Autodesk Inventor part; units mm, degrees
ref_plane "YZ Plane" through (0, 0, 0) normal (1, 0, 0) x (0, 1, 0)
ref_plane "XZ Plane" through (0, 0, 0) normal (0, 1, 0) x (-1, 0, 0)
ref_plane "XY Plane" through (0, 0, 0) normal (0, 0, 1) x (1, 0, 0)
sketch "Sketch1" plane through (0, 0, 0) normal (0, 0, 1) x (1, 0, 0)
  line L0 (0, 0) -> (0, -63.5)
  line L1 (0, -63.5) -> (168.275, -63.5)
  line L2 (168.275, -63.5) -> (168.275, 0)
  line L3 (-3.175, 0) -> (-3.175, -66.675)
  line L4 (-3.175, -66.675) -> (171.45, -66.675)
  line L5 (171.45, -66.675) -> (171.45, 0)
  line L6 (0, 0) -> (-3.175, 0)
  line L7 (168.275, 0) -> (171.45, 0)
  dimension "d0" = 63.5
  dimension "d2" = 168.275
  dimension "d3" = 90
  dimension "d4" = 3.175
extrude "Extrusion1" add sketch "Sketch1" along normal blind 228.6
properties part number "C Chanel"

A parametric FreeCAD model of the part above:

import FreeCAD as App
import Part
import Sketcher
Q = App.Units.Quantity


def add_polygon(sketch, points):
    """Adds a closed chain of lines whose ends are joined by coincident constraints."""
    first, n = sketch.GeometryCount, len(points)
    for a, b in zip(points, points[1:] + points[:1]):
        sketch.addGeometry(Part.LineSegment(App.Vector(*a, 0), App.Vector(*b, 0)), False)
    for i in range(n):
        sketch.addConstraint(Sketcher.Constraint("Coincident", first + i, 2, first + (i + 1) % n, 1))

doc = App.newDocument("Part")
params = doc.addObject("Spreadsheet::Sheet", "Params")
for row, (alias, value) in enumerate([
    ("sketch1_height", "2.5 in"),
    ("sketch1_width", "0.125 in"),
    ("sketch1_width2", "6.625 in"),
    ("pad1_length", "9 in"),
], start=1):
    params.set(f"A{row}", alias)
    params.set(f"B{row}", "=" + value)
    params.setAlias(f"B{row}", alias)

body = doc.addObject("PartDesign::Body", "Body")

# Sketch on XY plane
sketch1 = body.newObject("Sketcher::SketchObject", "Sketch")
sketch1.AttachmentSupport = (doc.getObject("XY_Plane"), [""])
sketch1.MapMode = "FlatFace"
add_polygon(sketch1, [(0, -63.5), (0, 0), (-3.175, 0), (-3.175, -66.675), (171.45, -66.675), (171.45, 0), (168.275, 0), (168.275, -63.5)])  # lines 0-7
sketch1.addConstraint(Sketcher.Constraint("Vertical", 0))
sketch1.addConstraint(Sketcher.Constraint("Horizontal", 1))
sketch1.addConstraint(Sketcher.Constraint("Vertical", 2))
sketch1.addConstraint(Sketcher.Constraint("Horizontal", 3))
sketch1.addConstraint(Sketcher.Constraint("Vertical", 4))
sketch1.addConstraint(Sketcher.Constraint("Horizontal", 5))
sketch1.addConstraint(Sketcher.Constraint("Vertical", 6))
sketch1.addConstraint(Sketcher.Constraint("Horizontal", 7))
sketch1.addConstraint(Sketcher.Constraint("Coincident", 0, 2, -1, 1))
sketch1.addConstraint(Sketcher.Constraint("PointOnObject", 4, 2, -1))
sketch1.addConstraint(Sketcher.Constraint("Equal", 1, 5))
sketch1.addConstraint(Sketcher.Constraint("DistanceY", 0, 1, 0, 2, Q("2.5 in")))
sketch1.addConstraint(Sketcher.Constraint("DistanceX", 1, 2, 1, 1, Q("0.125 in")))
sketch1.addConstraint(Sketcher.Constraint("DistanceX", 7, 2, 7, 1, Q("6.625 in")))
sketch1.addConstraint(Sketcher.Constraint("DistanceY", 3, 2, 6, 2, Q("0.125 in")))
sketch1.setExpression("Constraints[19]", "Params.sketch1_height")
sketch1.setExpression("Constraints[20]", "Params.sketch1_width")
sketch1.setExpression("Constraints[21]", "Params.sketch1_width2")
pad1 = body.newObject("PartDesign::Pad", "Pad")
pad1.Profile = sketch1
pad1.setExpression("Length", "Params.pad1_length")

doc.recompute()
